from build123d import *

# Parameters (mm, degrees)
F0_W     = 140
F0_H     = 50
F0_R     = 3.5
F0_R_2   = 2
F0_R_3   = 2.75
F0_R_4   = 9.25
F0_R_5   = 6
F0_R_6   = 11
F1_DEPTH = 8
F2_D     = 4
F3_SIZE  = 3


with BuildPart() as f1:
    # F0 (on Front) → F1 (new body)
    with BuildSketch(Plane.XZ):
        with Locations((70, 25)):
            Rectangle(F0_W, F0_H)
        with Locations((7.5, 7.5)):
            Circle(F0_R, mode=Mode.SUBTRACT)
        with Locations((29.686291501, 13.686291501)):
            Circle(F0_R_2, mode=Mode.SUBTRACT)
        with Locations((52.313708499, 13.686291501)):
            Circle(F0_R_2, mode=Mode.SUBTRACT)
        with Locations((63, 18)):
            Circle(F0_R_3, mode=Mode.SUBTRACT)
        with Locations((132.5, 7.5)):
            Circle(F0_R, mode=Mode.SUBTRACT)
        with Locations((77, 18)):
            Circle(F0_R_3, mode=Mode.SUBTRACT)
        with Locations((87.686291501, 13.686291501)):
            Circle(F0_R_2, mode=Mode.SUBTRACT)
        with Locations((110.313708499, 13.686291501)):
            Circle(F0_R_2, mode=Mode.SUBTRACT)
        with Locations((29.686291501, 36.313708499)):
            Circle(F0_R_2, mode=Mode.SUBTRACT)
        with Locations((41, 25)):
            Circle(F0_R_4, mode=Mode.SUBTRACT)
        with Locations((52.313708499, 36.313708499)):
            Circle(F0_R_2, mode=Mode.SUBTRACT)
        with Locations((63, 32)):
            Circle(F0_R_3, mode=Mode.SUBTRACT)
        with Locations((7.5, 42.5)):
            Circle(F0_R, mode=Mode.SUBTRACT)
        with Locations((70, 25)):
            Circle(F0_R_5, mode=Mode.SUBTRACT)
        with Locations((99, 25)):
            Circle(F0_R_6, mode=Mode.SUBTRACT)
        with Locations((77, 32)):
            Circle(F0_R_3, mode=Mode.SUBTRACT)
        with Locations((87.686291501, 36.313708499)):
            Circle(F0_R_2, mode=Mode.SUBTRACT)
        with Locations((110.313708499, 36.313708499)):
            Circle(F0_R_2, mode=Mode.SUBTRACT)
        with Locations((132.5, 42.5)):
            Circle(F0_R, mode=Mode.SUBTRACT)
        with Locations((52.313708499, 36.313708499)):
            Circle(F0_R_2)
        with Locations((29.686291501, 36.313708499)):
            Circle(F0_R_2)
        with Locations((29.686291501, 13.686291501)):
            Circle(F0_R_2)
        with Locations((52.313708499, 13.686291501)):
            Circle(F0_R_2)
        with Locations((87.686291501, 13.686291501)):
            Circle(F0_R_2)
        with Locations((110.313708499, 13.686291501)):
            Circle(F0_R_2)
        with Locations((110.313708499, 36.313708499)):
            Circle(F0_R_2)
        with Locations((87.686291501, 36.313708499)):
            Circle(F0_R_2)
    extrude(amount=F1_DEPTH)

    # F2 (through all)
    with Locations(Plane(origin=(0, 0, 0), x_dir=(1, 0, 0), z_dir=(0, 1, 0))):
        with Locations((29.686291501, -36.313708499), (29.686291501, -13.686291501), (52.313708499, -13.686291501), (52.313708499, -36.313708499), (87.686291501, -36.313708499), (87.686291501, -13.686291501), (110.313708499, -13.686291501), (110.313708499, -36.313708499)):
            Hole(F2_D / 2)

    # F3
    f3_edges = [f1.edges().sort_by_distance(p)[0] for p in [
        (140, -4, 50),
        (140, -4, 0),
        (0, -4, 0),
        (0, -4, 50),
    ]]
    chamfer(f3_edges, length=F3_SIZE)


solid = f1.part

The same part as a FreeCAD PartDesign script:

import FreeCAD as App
import Part
import Sketcher
Q = App.Units.Quantity


def edges_at(feature, points):
    """Names of the edges that pass closest to the given points."""
    edges = feature.Shape.Edges
    near = lambda p: min(range(len(edges)), key=lambda i: edges[i].distToShape(Part.Vertex(*p))[0])
    return sorted({f"Edge{near(p) + 1}" for p in points})

doc = App.newDocument("Part")
params = doc.addObject("Spreadsheet::Sheet", "Params")
for row, (alias, value) in enumerate([
    ("sketch1_diameter", "7 mm"),
    ("sketch1_diameter2", "12 mm"),
    ("sketch1_diameter3", "22 mm"),
    ("sketch1_diameter4", "5.5 mm"),
    ("sketch1_diameter5", "18.5 mm"),
    ("pad1_length", "8 mm"),
    ("sketch2_diameter", "4 mm"),
    ("hole_diameter", "4 mm"),
    ("chamfer_size", "3 mm"),
], start=1):
    params.set(f"A{row}", alias)
    params.set(f"B{row}", "=" + value)
    params.setAlias(f"B{row}", alias)

body = doc.addObject("PartDesign::Body", "Body")

# Sketch on XZ plane
sketch1 = body.newObject("Sketcher::SketchObject", "Sketch")
sketch1.AttachmentSupport = (doc.getObject("XZ_Plane"), [""])
sketch1.MapMode = "FlatFace"
sketch1.addGeometry(Part.LineSegment(App.Vector(0, 50, 0), App.Vector(0, 0, 0)), False)
sketch1.addGeometry(Part.LineSegment(App.Vector(0, 0, 0), App.Vector(140, 0, 0)), False)
sketch1.addGeometry(Part.LineSegment(App.Vector(140, 0, 0), App.Vector(140, 50, 0)), False)
sketch1.addGeometry(Part.LineSegment(App.Vector(140, 50, 0), App.Vector(0, 50, 0)), False)
sketch1.addGeometry(Part.Circle(App.Vector(7.5, 7.5, 0), App.Vector(0, 0, 1), 3.5), False)
sketch1.addGeometry(Part.Circle(App.Vector(63, 18, 0), App.Vector(0, 0, 1), 2.8), False)
sketch1.addGeometry(Part.Circle(App.Vector(132.5, 7.5, 0), App.Vector(0, 0, 1), 3.5), False)
sketch1.addGeometry(Part.Circle(App.Vector(77, 18, 0), App.Vector(0, 0, 1), 2.8), False)
sketch1.addGeometry(Part.Circle(App.Vector(41, 25, 0), App.Vector(0, 0, 1), 9.2), False)
sketch1.addGeometry(Part.Circle(App.Vector(63, 32, 0), App.Vector(0, 0, 1), 2.8), False)
sketch1.addGeometry(Part.Circle(App.Vector(7.5, 42.5, 0), App.Vector(0, 0, 1), 3.5), False)
sketch1.addGeometry(Part.Circle(App.Vector(70, 25, 0), App.Vector(0, 0, 1), 6), False)
sketch1.addGeometry(Part.Circle(App.Vector(99, 25, 0), App.Vector(0, 0, 1), 11), False)
sketch1.addGeometry(Part.Circle(App.Vector(77, 32, 0), App.Vector(0, 0, 1), 2.8), False)
sketch1.addGeometry(Part.Circle(App.Vector(132.5, 42.5, 0), App.Vector(0, 0, 1), 3.5), False)
sketch1.addConstraint(Sketcher.Constraint("Coincident", 0, 2, 1, 1))
sketch1.addConstraint(Sketcher.Constraint("Coincident", 1, 2, 2, 1))
sketch1.addConstraint(Sketcher.Constraint("Coincident", 2, 2, 3, 1))
sketch1.addConstraint(Sketcher.Constraint("Coincident", 3, 2, 0, 1))
sketch1.addConstraint(Sketcher.Constraint("Vertical", 0))
sketch1.addConstraint(Sketcher.Constraint("Horizontal", 1))
sketch1.addConstraint(Sketcher.Constraint("Vertical", 2))
sketch1.addConstraint(Sketcher.Constraint("Horizontal", 3))
sketch1.addConstraint(Sketcher.Constraint("Coincident", 0, 2, -1, 1))
sketch1.addConstraint(Sketcher.Constraint("Equal", 4, 6))
sketch1.addConstraint(Sketcher.Constraint("Equal", 5, 7))
sketch1.addConstraint(Sketcher.Constraint("Equal", 7, 9))
sketch1.addConstraint(Sketcher.Constraint("Equal", 6, 10))
sketch1.addConstraint(Sketcher.Constraint("Equal", 9, 13))
sketch1.addConstraint(Sketcher.Constraint("Equal", 10, 14))
sketch1.addConstraint(Sketcher.Constraint("Horizontal", 4, 3, 6, 3))
sketch1.addConstraint(Sketcher.Constraint("Horizontal", 5, 3, 7, 3))
sketch1.addConstraint(Sketcher.Constraint("Horizontal", 8, 3, 11, 3))
sketch1.addConstraint(Sketcher.Constraint("Horizontal", 11, 3, 12, 3))
sketch1.addConstraint(Sketcher.Constraint("Horizontal", 9, 3, 13, 3))
sketch1.addConstraint(Sketcher.Constraint("Horizontal", 10, 3, 14, 3))
sketch1.addConstraint(Sketcher.Constraint("Vertical", 5, 3, 9, 3))
sketch1.addConstraint(Sketcher.Constraint("Vertical", 4, 3, 10, 3))
sketch1.addConstraint(Sketcher.Constraint("Vertical", 7, 3, 13, 3))
sketch1.addConstraint(Sketcher.Constraint("Vertical", 6, 3, 14, 3))
sketch1.addConstraint(Sketcher.Constraint("Diameter", 4, Q("7 mm")))
sketch1.addConstraint(Sketcher.Constraint("Diameter", 11, Q("12 mm")))
sketch1.addConstraint(Sketcher.Constraint("Diameter", 12, Q("22 mm")))
sketch1.addConstraint(Sketcher.Constraint("Diameter", 5, Q("5.5 mm")))
sketch1.addConstraint(Sketcher.Constraint("Diameter", 8, Q("18.5 mm")))
sketch1.addConstraint(Sketcher.Constraint("DistanceX", 1, 1, 1, 2, Q("140 mm")))
sketch1.addConstraint(Sketcher.Constraint("DistanceY", 0, 2, 0, 1, Q("50 mm")))
sketch1.addConstraint(Sketcher.Constraint("DistanceX", -1, 1, 5, 3, Q("63 mm")))
sketch1.addConstraint(Sketcher.Constraint("DistanceY", -1, 1, 5, 3, Q("18 mm")))
sketch1.addConstraint(Sketcher.Constraint("DistanceX", -1, 1, 7, 3, Q("77 mm")))
sketch1.addConstraint(Sketcher.Constraint("DistanceX", -1, 1, 8, 3, Q("41 mm")))
sketch1.addConstraint(Sketcher.Constraint("DistanceY", -1, 1, 8, 3, Q("25 mm")))
sketch1.addConstraint(Sketcher.Constraint("DistanceY", -1, 1, 9, 3, Q("32 mm")))
sketch1.addConstraint(Sketcher.Constraint("DistanceX", -1, 1, 11, 3, Q("70 mm")))
sketch1.addConstraint(Sketcher.Constraint("DistanceX", -1, 1, 12, 3, Q("99 mm")))
sketch1.addConstraint(Sketcher.Constraint("DistanceX", 4, 3, 6, 3, Q("125 mm")))
sketch1.addConstraint(Sketcher.Constraint("DistanceY", 4, 3, 10, 3, Q("35 mm")))
sketch1.addConstraint(Sketcher.Constraint("DistanceX", -1, 1, 4, 3, Q("7.5 mm")))
sketch1.addConstraint(Sketcher.Constraint("DistanceY", -1, 1, 4, 3, Q("7.5 mm")))
sketch1.setExpression("Constraints[25]", "Params.sketch1_diameter")
sketch1.setExpression("Constraints[26]", "Params.sketch1_diameter2")
sketch1.setExpression("Constraints[27]", "Params.sketch1_diameter3")
sketch1.setExpression("Constraints[28]", "Params.sketch1_diameter4")
sketch1.setExpression("Constraints[29]", "Params.sketch1_diameter5")
pad1 = body.newObject("PartDesign::Pad", "Pad")
pad1.Profile = sketch1
pad1.setExpression("Length", "Params.pad1_length")

# Sketch on XZ plane
sketch2 = body.newObject("Sketcher::SketchObject", "Sketch001")
sketch2.AttachmentSupport = (doc.getObject("XZ_Plane"), [""])
sketch2.MapMode = "FlatFace"
sketch2.addGeometry(Part.Circle(App.Vector(29.7, 36.3, 0), App.Vector(0, 0, 1), 2), False)
sketch2.addGeometry(Part.Circle(App.Vector(29.7, 13.7, 0), App.Vector(0, 0, 1), 2), False)
sketch2.addGeometry(Part.Circle(App.Vector(52.3, 13.7, 0), App.Vector(0, 0, 1), 2), False)
sketch2.addGeometry(Part.Circle(App.Vector(52.3, 36.3, 0), App.Vector(0, 0, 1), 2), False)
sketch2.addGeometry(Part.Circle(App.Vector(87.7, 36.3, 0), App.Vector(0, 0, 1), 2), False)
sketch2.addGeometry(Part.Circle(App.Vector(87.7, 13.7, 0), App.Vector(0, 0, 1), 2), False)
sketch2.addGeometry(Part.Circle(App.Vector(110.3, 13.7, 0), App.Vector(0, 0, 1), 2), False)
sketch2.addGeometry(Part.Circle(App.Vector(110.3, 36.3, 0), App.Vector(0, 0, 1), 2), False)
sketch2.addConstraint(Sketcher.Constraint("Equal", 0, 1))
sketch2.addConstraint(Sketcher.Constraint("Equal", 1, 2))
sketch2.addConstraint(Sketcher.Constraint("Equal", 2, 3))
sketch2.addConstraint(Sketcher.Constraint("Equal", 3, 4))
sketch2.addConstraint(Sketcher.Constraint("Equal", 4, 5))
sketch2.addConstraint(Sketcher.Constraint("Equal", 5, 6))
sketch2.addConstraint(Sketcher.Constraint("Equal", 6, 7))
sketch2.addConstraint(Sketcher.Constraint("Horizontal", 1, 3, 2, 3))
sketch2.addConstraint(Sketcher.Constraint("Horizontal", 0, 3, 3, 3))
sketch2.addConstraint(Sketcher.Constraint("Horizontal", 3, 3, 4, 3))
sketch2.addConstraint(Sketcher.Constraint("Horizontal", 2, 3, 5, 3))
sketch2.addConstraint(Sketcher.Constraint("Horizontal", 5, 3, 6, 3))
sketch2.addConstraint(Sketcher.Constraint("Horizontal", 4, 3, 7, 3))
sketch2.addConstraint(Sketcher.Constraint("Vertical", 0, 3, 1, 3))
sketch2.addConstraint(Sketcher.Constraint("Vertical", 2, 3, 3, 3))
sketch2.addConstraint(Sketcher.Constraint("Vertical", 4, 3, 5, 3))
sketch2.addConstraint(Sketcher.Constraint("Vertical", 6, 3, 7, 3))
sketch2.addConstraint(Sketcher.Constraint("Diameter", 0, Q("4 mm")))
sketch2.addConstraint(Sketcher.Constraint("DistanceX", 0, 3, 4, 3, Q("58 mm")))
sketch2.addConstraint(Sketcher.Constraint("DistanceX", 2, 3, 6, 3, Q("58 mm")))
sketch2.addConstraint(Sketcher.Constraint("DistanceX", -1, 1, 0, 3, Q("29.686292 mm")))
sketch2.addConstraint(Sketcher.Constraint("DistanceY", -1, 1, 0, 3, Q("36.313708 mm")))
sketch2.addConstraint(Sketcher.Constraint("DistanceY", -1, 1, 1, 3, Q("13.686292 mm")))
sketch2.addConstraint(Sketcher.Constraint("DistanceX", -1, 1, 2, 3, Q("52.313708 mm")))
sketch2.setExpression("Constraints[17]", "Params.sketch2_diameter")
doc.recompute()
hole = body.newObject("PartDesign::Hole", "Hole")
hole.Profile = sketch2
hole.ThreadType = "None"
hole.setExpression("Diameter", "Params.hole_diameter")
hole.DepthType = "ThroughAll"
hole.Reversed = True
doc.recompute()

chamfer = body.newObject("PartDesign::Chamfer", "Chamfer")
chamfer.Base = (hole, edges_at(hole, [
    (140, -4, 50),
    (140, -4, 0),
    (0, -4, 0),
    (0, -4, 50),
]))
chamfer.setExpression("Size", "Params.chamfer_size")

doc.recompute()
